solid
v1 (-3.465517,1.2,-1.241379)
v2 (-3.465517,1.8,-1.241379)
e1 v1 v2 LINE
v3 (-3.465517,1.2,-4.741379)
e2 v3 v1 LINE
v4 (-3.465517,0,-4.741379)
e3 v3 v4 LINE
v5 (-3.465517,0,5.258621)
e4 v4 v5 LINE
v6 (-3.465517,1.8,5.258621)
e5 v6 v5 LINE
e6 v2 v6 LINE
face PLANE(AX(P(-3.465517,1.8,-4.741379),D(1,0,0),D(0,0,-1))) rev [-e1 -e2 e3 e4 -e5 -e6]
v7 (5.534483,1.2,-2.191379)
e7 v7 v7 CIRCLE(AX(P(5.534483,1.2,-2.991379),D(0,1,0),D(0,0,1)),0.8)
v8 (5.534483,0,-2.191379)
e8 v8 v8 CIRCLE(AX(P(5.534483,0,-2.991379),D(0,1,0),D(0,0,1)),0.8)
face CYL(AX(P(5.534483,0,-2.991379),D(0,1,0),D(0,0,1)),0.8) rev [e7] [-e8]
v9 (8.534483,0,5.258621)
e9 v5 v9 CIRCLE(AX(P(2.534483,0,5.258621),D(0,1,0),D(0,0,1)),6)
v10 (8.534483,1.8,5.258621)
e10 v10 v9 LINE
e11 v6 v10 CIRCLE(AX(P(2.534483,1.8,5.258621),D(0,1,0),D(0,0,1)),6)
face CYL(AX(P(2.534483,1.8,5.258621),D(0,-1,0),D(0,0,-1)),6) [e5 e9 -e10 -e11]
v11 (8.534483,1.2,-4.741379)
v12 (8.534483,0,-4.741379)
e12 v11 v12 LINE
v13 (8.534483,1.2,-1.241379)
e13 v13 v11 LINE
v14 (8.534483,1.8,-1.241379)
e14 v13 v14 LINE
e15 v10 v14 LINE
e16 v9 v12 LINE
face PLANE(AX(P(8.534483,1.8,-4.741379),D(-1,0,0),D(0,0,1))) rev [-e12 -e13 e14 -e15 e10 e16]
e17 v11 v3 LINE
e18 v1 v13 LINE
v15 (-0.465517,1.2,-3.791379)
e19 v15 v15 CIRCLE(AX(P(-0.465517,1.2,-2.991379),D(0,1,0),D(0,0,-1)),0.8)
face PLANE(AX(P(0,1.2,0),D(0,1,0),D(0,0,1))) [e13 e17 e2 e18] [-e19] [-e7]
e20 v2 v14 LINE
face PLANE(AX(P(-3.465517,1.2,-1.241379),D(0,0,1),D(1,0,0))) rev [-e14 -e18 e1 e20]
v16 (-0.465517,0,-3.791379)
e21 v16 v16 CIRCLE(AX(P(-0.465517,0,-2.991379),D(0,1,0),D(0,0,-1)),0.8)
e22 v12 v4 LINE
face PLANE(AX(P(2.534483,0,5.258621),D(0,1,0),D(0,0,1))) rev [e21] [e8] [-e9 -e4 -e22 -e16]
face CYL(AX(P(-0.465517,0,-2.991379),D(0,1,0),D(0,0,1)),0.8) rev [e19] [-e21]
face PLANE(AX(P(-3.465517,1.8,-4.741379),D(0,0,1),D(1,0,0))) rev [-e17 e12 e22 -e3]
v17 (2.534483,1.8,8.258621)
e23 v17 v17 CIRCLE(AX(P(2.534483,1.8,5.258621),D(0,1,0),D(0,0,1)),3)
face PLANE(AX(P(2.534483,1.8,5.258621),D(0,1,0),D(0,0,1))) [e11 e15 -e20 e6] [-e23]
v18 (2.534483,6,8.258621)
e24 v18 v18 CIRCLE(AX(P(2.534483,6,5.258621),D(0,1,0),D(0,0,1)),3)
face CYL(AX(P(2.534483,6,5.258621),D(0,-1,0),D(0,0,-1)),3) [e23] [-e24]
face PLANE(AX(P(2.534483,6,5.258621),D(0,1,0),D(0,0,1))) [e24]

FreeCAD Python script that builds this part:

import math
import FreeCAD as App
import Part
import Sketcher
from FreeCAD import Vector
Q = App.Units.Quantity

doc = App.newDocument("Part")
params = doc.addObject("Spreadsheet::Sheet", "Params")
for row, (alias, value) in enumerate([
    ("sketch1_radius", "6 mm"),
    ("sketch1_height", "10 mm"),
    ("pad1_length", "1.8 mm"),
    ("sketch2_width", "12 mm"),
    ("sketch2_height", "3.5 mm"),
    ("pocket1_length", "0.6 mm"),
    ("sketch3_diameter", "6 mm"),
    ("pad2_length", "4.2 mm"),
    ("sketch4_diameter", "1.6 mm"),
], start=1):
    params.set(f"A{row}", alias)
    params.set(f"B{row}", "=" + value)
    params.setAlias(f"B{row}", alias)

body = doc.addObject("PartDesign::Body", "Body")

# Sketch on XZ plane
sketch1 = doc.addObject("Sketcher::SketchObject", "Sketch")
body.addObject(sketch1)
sketch1.AttachmentSupport = (doc.XZ_Plane, [""])
sketch1.MapMode = "FlatFace"
sketch1.addGeometry([
    Part.LineSegment(Vector(9, -5, 0), Vector(-3, -5, 0)),
    Part.LineSegment(Vector(-3, -5, 0), Vector(-3, 5, 0)),
    Part.ArcOfCircle(Part.Circle(Vector(3, 5, 0), Vector(0, 0, 1), 6), math.radians(0), math.radians(180)),
    Part.LineSegment(Vector(9, 5, 0), Vector(9, -5, 0)),
], False)
sketch1.addConstraint([
    Sketcher.Constraint("Coincident", 0, 2, 1, 1),
    Sketcher.Constraint("Tangent", 1, 2, 2, 2),
    Sketcher.Constraint("Tangent", 2, 1, 3, 1),
    Sketcher.Constraint("Coincident", 3, 2, 0, 1),
    Sketcher.Constraint("Horizontal", 0),
    Sketcher.Constraint("Vertical", 1),
    Sketcher.Constraint("Vertical", 3),
    Sketcher.Constraint("Radius", 2, Q("6 mm")),
    Sketcher.Constraint("DistanceY", 1, 1, 1, 2, Q("10 mm")),
    Sketcher.Constraint("DistanceY", -1, 1, 2, 3, Q("5.258621 mm")),
    Sketcher.Constraint("DistanceX", -1, 1, 2, 3, Q("2.534483 mm")),
])
sketch1.setExpression("Constraints[7]", "Params.sketch1_radius")
sketch1.setExpression("Constraints[8]", "Params.sketch1_height")
pad1 = doc.addObject("PartDesign::Pad", "Pad")
body.addObject(pad1)
pad1.Profile = sketch1
pad1.setExpression("Length", "Params.pad1_length")
pad1.Reversed = True

# Sketch on XZ plane
sketch2 = doc.addObject("Sketcher::SketchObject", "Sketch001")
body.addObject(sketch2)
sketch2.AttachmentSupport = (doc.XZ_Plane, [""])
sketch2.MapMode = "FlatFace"
sketch2.AttachmentOffset = App.Placement(Vector(0, 0, -1.8), App.Rotation())
sketch2.addGeometry([
    Part.LineSegment(Vector(-3.5, -4.7, 0), Vector(-3.5, -1.2, 0)),
    Part.LineSegment(Vector(-3.5, -1.2, 0), Vector(8.5, -1.2, 0)),
    Part.LineSegment(Vector(8.5, -1.2, 0), Vector(8.5, -4.7, 0)),
    Part.LineSegment(Vector(8.5, -4.7, 0), Vector(-3.5, -4.7, 0)),
], False)
sketch2.addConstraint([
    Sketcher.Constraint("Coincident", 0, 2, 1, 1),
    Sketcher.Constraint("Coincident", 1, 2, 2, 1),
    Sketcher.Constraint("Coincident", 2, 2, 3, 1),
    Sketcher.Constraint("Coincident", 3, 2, 0, 1),
    Sketcher.Constraint("Vertical", 0),
    Sketcher.Constraint("Horizontal", 1),
    Sketcher.Constraint("Vertical", 2),
    Sketcher.Constraint("Horizontal", 3),
    Sketcher.Constraint("DistanceX", 1, 1, 1, 2, Q("12 mm")),
    Sketcher.Constraint("DistanceY", 0, 1, 0, 2, Q("3.5 mm")),
    Sketcher.Constraint("DistanceY", 0, 2, -1, 1, Q("1.241379 mm")),
    Sketcher.Constraint("DistanceX", 0, 2, -1, 1, Q("3.465517 mm")),
])
sketch2.setExpression("Constraints[8]", "Params.sketch2_width")
sketch2.setExpression("Constraints[9]", "Params.sketch2_height")
pocket1 = doc.addObject("PartDesign::Pocket", "Pocket")
body.addObject(pocket1)
pocket1.Profile = sketch2
pocket1.setExpression("Length", "Params.pocket1_length")
pocket1.Reversed = True

# Sketch on XZ plane
sketch3 = doc.addObject("Sketcher::SketchObject", "Sketch002")
body.addObject(sketch3)
sketch3.AttachmentSupport = (doc.XZ_Plane, [""])
sketch3.MapMode = "FlatFace"
sketch3.AttachmentOffset = App.Placement(Vector(0, 0, -1.8), App.Rotation())
sketch3.addGeometry(Part.Circle(Vector(2.5, 5.3, 0), Vector(0, 0, 1), 3), False)
sketch3.addConstraint([
    Sketcher.Constraint("Diameter", 0, Q("6 mm")),
    Sketcher.Constraint("DistanceY", -1, 1, 0, 3, Q("5.258621 mm")),
    Sketcher.Constraint("DistanceX", -1, 1, 0, 3, Q("2.534483 mm")),
])
sketch3.setExpression("Constraints[0]", "Params.sketch3_diameter")
pad2 = doc.addObject("PartDesign::Pad", "Pad001")
body.addObject(pad2)
pad2.Profile = sketch3
pad2.setExpression("Length", "Params.pad2_length")
pad2.Reversed = True

# Sketch on XZ plane
sketch4 = doc.addObject("Sketcher::SketchObject", "Sketch003")
body.addObject(sketch4)
sketch4.AttachmentSupport = (doc.XZ_Plane, [""])
sketch4.MapMode = "FlatFace"
sketch4.AttachmentOffset = App.Placement(Vector(0, 0, -1.2), App.Rotation())
sketch4.addGeometry([
    Part.Circle(Vector(5.5, -3, 0), Vector(0, 0, 1), 0.8),
    Part.Circle(Vector(-0.5, -3, 0), Vector(0, 0, 1), 0.8),
], False)
sketch4.addConstraint([
    Sketcher.Constraint("Equal", 0, 1),
    Sketcher.Constraint("Horizontal", 0, 3, 1, 3),
    Sketcher.Constraint("Diameter", 0, Q("1.6 mm")),
    Sketcher.Constraint("DistanceX", 1, 3, 0, 3, Q("6 mm")),
    Sketcher.Constraint("DistanceY", 0, 3, -1, 1, Q("2.991379 mm")),
    Sketcher.Constraint("DistanceX", -1, 1, 0, 3, Q("5.534483 mm")),
])
sketch4.setExpression("Constraints[2]", "Params.sketch4_diameter")
pocket2 = doc.addObject("PartDesign::Pocket", "Pocket001")
body.addObject(pocket2)
pocket2.Profile = sketch4
pocket2.Type = "ThroughAll"
pocket2.Reversed = True

doc.recompute()
